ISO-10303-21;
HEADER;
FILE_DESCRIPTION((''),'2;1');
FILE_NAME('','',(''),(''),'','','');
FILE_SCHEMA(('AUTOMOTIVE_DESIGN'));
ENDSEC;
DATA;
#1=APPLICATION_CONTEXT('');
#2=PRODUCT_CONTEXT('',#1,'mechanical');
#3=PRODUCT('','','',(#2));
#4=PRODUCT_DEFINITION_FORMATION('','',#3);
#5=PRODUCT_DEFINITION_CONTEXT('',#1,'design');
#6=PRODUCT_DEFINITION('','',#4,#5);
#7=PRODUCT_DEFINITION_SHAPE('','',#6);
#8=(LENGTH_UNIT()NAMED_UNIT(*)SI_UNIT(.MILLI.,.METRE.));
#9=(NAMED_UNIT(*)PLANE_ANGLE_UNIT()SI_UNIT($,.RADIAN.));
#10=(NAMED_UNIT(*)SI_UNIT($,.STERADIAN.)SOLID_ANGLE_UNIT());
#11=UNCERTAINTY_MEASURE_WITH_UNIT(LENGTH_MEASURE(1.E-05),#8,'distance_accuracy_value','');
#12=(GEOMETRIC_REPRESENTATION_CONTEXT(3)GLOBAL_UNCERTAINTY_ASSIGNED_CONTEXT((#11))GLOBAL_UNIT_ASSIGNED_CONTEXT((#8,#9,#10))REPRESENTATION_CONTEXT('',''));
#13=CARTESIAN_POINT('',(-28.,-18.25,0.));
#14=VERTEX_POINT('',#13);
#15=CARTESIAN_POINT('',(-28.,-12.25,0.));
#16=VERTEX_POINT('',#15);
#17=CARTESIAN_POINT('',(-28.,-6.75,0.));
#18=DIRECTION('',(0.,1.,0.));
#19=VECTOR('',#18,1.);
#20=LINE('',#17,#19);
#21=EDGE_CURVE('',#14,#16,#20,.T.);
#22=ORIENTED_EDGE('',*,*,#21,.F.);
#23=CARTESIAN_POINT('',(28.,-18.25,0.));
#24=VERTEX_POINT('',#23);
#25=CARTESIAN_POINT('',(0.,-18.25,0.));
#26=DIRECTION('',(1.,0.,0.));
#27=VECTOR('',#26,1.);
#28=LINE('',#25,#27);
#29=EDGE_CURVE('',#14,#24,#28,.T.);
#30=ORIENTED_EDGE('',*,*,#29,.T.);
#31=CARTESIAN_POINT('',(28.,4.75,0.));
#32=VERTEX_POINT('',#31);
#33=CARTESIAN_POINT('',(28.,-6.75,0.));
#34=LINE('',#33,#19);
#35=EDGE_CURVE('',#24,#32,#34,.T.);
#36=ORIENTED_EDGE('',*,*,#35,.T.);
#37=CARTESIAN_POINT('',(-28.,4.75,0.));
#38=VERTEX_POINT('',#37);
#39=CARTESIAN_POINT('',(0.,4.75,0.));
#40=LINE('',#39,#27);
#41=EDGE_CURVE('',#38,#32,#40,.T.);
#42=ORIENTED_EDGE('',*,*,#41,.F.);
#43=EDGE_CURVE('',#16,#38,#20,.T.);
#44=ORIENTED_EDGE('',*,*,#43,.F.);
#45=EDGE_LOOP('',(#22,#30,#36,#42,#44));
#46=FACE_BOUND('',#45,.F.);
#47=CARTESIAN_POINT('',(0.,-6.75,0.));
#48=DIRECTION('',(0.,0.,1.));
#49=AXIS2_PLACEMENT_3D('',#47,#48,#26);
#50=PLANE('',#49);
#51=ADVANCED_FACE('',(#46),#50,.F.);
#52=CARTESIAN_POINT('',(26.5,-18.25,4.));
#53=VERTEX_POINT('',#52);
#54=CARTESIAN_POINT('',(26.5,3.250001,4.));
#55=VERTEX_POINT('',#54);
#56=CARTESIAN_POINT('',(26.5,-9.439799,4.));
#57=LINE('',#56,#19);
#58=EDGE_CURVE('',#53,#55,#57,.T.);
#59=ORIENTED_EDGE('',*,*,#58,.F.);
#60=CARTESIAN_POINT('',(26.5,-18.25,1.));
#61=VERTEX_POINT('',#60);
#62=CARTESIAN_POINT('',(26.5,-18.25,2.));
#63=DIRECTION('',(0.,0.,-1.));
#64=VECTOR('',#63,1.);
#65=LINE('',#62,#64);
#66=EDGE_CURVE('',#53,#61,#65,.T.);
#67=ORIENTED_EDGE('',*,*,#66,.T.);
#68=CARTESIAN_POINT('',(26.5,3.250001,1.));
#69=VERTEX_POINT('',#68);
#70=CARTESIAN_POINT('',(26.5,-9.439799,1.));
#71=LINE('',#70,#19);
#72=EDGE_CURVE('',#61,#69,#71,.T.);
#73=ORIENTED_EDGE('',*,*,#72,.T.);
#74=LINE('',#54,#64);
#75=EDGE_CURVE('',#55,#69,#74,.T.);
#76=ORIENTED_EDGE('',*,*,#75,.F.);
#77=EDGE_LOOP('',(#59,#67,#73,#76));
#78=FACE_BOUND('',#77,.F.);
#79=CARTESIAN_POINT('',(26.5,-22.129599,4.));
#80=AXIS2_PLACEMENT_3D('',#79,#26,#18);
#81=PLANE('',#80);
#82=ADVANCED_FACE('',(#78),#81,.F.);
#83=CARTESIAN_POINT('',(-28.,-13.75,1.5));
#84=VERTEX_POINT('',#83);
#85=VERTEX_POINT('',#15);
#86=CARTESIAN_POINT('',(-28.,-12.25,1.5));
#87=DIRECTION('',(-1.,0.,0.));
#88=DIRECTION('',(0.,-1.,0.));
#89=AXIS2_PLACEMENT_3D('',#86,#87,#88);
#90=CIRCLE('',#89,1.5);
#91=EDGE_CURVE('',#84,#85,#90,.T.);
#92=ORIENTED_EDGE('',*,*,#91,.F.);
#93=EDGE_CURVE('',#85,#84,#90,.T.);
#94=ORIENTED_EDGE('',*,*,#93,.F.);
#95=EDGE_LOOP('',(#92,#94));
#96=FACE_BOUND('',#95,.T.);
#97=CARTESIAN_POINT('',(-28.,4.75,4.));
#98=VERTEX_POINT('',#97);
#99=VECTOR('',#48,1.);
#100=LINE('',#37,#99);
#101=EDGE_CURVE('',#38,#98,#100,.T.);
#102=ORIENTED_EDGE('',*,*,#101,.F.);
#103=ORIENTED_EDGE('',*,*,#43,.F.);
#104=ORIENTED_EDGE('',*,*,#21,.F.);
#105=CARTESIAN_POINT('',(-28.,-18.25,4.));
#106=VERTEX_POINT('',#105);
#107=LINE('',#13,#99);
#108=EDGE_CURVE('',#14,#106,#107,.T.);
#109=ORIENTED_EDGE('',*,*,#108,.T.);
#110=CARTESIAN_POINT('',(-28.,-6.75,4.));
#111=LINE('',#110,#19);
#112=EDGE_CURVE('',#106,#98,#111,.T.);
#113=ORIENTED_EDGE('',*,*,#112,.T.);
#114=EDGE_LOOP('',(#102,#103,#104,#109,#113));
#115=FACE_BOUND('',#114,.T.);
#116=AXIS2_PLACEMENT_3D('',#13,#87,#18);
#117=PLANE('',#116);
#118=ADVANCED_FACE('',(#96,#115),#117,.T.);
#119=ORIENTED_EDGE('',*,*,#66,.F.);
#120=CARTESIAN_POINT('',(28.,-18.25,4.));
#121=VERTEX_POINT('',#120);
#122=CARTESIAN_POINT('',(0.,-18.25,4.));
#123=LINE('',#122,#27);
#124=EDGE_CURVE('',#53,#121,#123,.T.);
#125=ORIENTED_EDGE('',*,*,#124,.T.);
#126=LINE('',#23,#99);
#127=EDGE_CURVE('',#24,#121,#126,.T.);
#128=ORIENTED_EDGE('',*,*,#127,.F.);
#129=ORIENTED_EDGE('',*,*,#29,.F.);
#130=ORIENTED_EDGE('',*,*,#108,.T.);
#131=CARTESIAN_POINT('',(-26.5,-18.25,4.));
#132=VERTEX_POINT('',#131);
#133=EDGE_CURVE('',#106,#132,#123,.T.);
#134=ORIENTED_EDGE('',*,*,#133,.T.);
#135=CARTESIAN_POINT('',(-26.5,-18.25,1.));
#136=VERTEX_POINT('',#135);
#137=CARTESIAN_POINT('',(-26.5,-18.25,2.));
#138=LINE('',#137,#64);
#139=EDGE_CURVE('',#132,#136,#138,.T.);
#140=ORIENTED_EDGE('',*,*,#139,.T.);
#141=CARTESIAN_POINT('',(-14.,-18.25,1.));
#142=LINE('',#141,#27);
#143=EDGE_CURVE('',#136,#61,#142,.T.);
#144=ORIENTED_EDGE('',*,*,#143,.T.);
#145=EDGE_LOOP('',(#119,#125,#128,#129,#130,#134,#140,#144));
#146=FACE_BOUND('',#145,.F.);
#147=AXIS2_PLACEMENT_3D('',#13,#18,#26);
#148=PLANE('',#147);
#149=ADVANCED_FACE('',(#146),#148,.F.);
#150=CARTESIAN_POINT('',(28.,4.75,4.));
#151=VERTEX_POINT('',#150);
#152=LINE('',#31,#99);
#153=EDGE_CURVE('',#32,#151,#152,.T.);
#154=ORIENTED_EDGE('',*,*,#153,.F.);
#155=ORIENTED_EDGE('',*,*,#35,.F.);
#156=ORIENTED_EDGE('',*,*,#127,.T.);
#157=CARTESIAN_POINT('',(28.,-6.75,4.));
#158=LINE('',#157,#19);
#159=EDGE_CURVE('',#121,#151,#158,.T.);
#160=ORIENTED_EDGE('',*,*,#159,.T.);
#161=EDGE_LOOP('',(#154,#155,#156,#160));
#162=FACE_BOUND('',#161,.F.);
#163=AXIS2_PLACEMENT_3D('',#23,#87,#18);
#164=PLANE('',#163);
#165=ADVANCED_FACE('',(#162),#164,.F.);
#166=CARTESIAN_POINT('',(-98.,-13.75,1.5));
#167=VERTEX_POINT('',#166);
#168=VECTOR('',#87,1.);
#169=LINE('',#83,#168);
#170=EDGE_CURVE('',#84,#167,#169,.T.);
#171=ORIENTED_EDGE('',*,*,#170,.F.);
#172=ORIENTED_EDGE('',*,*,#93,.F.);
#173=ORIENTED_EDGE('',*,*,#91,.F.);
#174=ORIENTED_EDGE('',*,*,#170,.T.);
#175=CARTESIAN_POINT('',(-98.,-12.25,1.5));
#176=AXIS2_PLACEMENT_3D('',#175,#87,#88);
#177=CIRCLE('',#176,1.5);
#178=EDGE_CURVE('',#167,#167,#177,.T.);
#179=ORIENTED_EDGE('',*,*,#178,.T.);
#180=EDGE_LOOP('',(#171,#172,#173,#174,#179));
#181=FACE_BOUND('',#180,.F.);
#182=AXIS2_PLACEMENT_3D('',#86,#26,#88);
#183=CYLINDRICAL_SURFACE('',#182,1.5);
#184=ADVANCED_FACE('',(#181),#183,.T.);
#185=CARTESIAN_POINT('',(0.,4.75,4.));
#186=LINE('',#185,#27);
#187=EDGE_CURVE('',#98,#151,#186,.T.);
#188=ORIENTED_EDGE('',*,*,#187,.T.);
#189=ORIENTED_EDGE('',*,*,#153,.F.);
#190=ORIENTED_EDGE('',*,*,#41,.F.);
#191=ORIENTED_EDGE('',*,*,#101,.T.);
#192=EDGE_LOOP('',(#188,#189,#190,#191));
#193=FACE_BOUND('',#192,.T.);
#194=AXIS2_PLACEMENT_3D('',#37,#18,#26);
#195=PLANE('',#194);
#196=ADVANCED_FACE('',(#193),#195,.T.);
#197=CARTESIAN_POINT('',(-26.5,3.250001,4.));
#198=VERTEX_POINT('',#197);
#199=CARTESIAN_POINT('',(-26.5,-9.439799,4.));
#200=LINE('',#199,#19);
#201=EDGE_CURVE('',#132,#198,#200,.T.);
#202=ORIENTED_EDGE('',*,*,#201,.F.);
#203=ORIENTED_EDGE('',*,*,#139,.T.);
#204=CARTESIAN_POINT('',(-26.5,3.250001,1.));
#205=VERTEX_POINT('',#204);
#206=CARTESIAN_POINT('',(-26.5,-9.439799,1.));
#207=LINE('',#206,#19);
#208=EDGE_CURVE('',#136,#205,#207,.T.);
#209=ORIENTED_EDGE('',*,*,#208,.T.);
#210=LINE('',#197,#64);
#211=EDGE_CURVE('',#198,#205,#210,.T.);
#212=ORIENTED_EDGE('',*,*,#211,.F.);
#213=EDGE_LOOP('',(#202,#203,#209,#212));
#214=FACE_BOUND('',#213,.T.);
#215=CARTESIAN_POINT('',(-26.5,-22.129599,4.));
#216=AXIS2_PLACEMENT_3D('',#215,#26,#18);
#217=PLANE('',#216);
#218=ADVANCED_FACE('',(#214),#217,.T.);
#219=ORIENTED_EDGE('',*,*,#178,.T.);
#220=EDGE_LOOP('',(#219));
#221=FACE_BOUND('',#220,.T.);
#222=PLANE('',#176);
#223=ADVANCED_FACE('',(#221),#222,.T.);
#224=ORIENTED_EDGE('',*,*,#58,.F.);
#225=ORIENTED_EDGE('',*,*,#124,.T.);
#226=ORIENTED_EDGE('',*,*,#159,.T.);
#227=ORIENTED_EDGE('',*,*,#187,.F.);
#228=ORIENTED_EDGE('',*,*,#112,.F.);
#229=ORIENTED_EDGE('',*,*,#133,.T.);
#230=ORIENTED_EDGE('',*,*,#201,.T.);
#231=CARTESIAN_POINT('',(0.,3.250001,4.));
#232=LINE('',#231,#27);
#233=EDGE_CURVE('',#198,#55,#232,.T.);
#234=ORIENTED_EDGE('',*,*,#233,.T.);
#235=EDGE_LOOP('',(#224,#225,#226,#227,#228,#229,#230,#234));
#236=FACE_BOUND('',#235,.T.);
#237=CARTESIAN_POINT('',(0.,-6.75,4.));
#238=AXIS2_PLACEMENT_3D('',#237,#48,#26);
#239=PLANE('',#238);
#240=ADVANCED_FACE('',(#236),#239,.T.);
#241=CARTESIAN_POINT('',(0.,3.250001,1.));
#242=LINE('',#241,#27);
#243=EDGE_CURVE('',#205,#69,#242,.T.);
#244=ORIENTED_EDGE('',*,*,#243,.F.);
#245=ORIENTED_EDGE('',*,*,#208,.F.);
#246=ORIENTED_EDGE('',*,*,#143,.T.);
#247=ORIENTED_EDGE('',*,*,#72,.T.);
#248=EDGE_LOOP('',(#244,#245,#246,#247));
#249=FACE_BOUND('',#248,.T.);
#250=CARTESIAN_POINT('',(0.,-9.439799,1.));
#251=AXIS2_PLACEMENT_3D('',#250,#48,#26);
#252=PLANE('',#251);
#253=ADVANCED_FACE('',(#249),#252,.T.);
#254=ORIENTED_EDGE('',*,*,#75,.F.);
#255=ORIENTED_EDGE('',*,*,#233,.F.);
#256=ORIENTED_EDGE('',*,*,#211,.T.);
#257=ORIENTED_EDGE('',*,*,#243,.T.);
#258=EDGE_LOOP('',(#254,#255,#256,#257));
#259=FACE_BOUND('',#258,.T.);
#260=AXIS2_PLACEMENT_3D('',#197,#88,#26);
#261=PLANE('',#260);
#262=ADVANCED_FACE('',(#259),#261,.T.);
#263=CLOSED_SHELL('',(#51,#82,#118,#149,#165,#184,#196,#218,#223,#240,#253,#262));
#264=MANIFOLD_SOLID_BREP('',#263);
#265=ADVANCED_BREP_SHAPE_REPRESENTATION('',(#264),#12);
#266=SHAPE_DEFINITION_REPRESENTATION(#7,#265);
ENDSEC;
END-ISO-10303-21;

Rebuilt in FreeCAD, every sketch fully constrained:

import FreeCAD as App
import Part
import Sketcher

V = App.Vector
Q = App.Units.Quantity


def add_polygon(sketch, points):
    """Adds a closed chain of lines whose ends are joined by coincident constraints."""
    first, n = sketch.GeometryCount, len(points)
    for a, b in zip(points, points[1:] + points[:1]):
        sketch.addGeometry(Part.LineSegment(App.Vector(*a, 0), App.Vector(*b, 0)), False)
    for i in range(n):
        sketch.addConstraint(Sketcher.Constraint("Coincident", first + i, 2, first + (i + 1) % n, 1))

doc = App.newDocument("Part")
body = doc.addObject("PartDesign::Body", "Body")

sketch1 = body.newObject("Sketcher::SketchObject", "Sketch")
sketch1.AttachmentSupport = (doc.getObject("XY_Plane"), [""])
sketch1.MapMode = "FlatFace"
add_polygon(sketch1, [(-28, 11.5), (-28, -11.5), (28, -11.5), (28, 11.5)])
sketch1.addConstraint([
    Sketcher.Constraint("Vertical", 0),
    Sketcher.Constraint("Horizontal", 1),
    Sketcher.Constraint("Vertical", 2),
    Sketcher.Constraint("Horizontal", 3),
    Sketcher.Constraint("Symmetric", 0, 2, 2, 2, -1, 1),
    Sketcher.Constraint("DistanceX", 1, 1, 1, 2, Q("56 mm")),
    Sketcher.Constraint("DistanceY", 0, 2, 0, 1, Q("23 mm")),
])
pad1 = body.newObject("PartDesign::Pad", "Pad")
pad1.Profile = sketch1
pad1.Length = 4

sketch2 = body.newObject("Sketcher::SketchObject", "Sketch001")
sketch2.AttachmentSupport = (doc.getObject("XY_Plane"), [""])
sketch2.MapMode = "FlatFace"
sketch2.AttachmentOffset = App.Placement(V(0, 0, 4), App.Rotation())
add_polygon(sketch2, [(-26.5, 10.000001), (-26.5, -15.379599), (26.5, -15.379599), (26.5, 10.000001)])
sketch2.addConstraint([
    Sketcher.Constraint("Vertical", 0),
    Sketcher.Constraint("Horizontal", 1),
    Sketcher.Constraint("Vertical", 2),
    Sketcher.Constraint("Horizontal", 3),
    Sketcher.Constraint("DistanceX", 1, 1, 1, 2, Q("53 mm")),
    Sketcher.Constraint("DistanceY", -1, 1, 2, 2, Q("10.000001 mm")),
    Sketcher.Constraint("DistanceX", 0, 2, -1, 1, Q("26.5 mm")),
    Sketcher.Constraint("DistanceY", 0, 2, 0, 1, Q("25.379599 mm")),
])
pocket1 = body.newObject("PartDesign::Pocket", "Pocket")
pocket1.Profile = sketch2
pocket1.Length = 3

sketch3 = body.newObject("Sketcher::SketchObject", "Sketch002")
sketch3.AttachmentSupport = (doc.getObject("YZ_Plane"), [""])
sketch3.MapMode = "FlatFace"
sketch3.AttachmentOffset = App.Placement(V(0, 0, -28), App.Rotation())
sketch3.addGeometry(Part.Circle(V(-5.5, 1.5, 0), V(0, 0, 1), 1.5), False)
sketch3.addConstraint([
    Sketcher.Constraint("Diameter", 0, Q("3 mm")),
    Sketcher.Constraint("DistanceX", 0, 3, -1, 1, Q("5.5 mm")),
    Sketcher.Constraint("DistanceY", -1, 1, 0, 3, Q("1.5 mm")),
])
pad2 = body.newObject("PartDesign::Pad", "Pad001")
pad2.Profile = sketch3
pad2.Length = 70
pad2.Reversed = True
body2 = doc.addObject("PartDesign::Body", "Body001")
doc.recompute()

body.Placement = App.Placement(V(0, -6.75, 0), App.Rotation(V(0, 0, 1), 0))
boolean = body2.newObject("PartDesign::Boolean", "Boolean")
boolean.Type = "Fuse"
boolean.addObjects([body])

doc.recompute()
